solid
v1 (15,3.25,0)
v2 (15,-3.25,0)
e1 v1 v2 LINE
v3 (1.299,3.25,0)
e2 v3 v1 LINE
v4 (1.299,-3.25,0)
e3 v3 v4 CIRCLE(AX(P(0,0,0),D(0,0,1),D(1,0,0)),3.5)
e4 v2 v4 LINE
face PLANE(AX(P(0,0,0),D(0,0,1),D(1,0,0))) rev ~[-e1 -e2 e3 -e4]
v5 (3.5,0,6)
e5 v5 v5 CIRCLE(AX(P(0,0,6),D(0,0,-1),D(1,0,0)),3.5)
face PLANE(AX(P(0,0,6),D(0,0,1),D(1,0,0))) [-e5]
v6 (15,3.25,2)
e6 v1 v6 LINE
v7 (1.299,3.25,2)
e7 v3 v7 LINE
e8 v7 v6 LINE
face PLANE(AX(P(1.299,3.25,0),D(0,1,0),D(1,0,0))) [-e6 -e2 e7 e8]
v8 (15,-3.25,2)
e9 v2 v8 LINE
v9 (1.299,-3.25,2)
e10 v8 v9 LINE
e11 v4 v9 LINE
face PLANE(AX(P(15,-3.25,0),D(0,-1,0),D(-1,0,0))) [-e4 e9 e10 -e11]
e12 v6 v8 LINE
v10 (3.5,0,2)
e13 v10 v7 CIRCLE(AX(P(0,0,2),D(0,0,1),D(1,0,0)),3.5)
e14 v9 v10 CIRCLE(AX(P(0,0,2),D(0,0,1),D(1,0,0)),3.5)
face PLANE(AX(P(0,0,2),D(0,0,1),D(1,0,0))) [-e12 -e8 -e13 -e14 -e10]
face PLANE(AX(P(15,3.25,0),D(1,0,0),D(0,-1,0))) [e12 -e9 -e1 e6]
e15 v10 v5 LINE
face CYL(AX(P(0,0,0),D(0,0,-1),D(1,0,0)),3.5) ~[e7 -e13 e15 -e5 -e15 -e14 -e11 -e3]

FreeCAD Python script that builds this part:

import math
import FreeCAD as App
import Part
import Sketcher
from FreeCAD import Vector

doc = App.newDocument("Part")
body = doc.addObject("PartDesign::Body", "Body")

# Sketch on XY plane
sketch1 = doc.addObject("Sketcher::SketchObject", "Sketch")
body.addObject(sketch1)
sketch1.AttachmentSupport = (doc.XY_Plane, [""])
sketch1.MapMode = "FlatFace"
sketch1.addGeometry(Part.Circle(Vector(0, 0, 0), Vector(0, 0, 1), 3.5), False)
sketch1.addConstraint(Sketcher.Constraint("Coincident", 0, 3, -1, 1))
sketch1.addConstraint(Sketcher.Constraint("Diameter", 0, 7.0))
pad1 = doc.addObject("PartDesign::Pad", "Pad")
body.addObject(pad1)
pad1.Profile = sketch1
pad1.Length = 6

# Sketch on XY plane
sketch2 = doc.addObject("Sketcher::SketchObject", "Sketch001")
body.addObject(sketch2)
sketch2.AttachmentSupport = (doc.XY_Plane, [""])
sketch2.MapMode = "FlatFace"
sketch2.addGeometry(Part.ArcOfCircle(Part.Circle(Vector(0, 0, 0), Vector(0, 0, 1), 3.5), math.radians(-68.21379), math.radians(68.21379)), False)
sketch2.addGeometry(Part.LineSegment(Vector(1.299, -3.25, 0), Vector(15, -3.25, 0)), False)
sketch2.addGeometry(Part.LineSegment(Vector(15, -3.25, 0), Vector(15, 3.25, 0)), False)
sketch2.addGeometry(Part.LineSegment(Vector(15, 3.25, 0), Vector(1.299, 3.25, 0)), False)
sketch2.addConstraint(Sketcher.Constraint("Coincident", 0, 1, 1, 1))
sketch2.addConstraint(Sketcher.Constraint("Coincident", 1, 2, 2, 1))
sketch2.addConstraint(Sketcher.Constraint("Coincident", 2, 2, 3, 1))
sketch2.addConstraint(Sketcher.Constraint("Coincident", 3, 2, 0, 2))
sketch2.addConstraint(Sketcher.Constraint("Horizontal", 1))
sketch2.addConstraint(Sketcher.Constraint("Vertical", 2))
sketch2.addConstraint(Sketcher.Constraint("Horizontal", 3))
sketch2.addConstraint(Sketcher.Constraint("Coincident", 0, 3, -1, 1))
sketch2.addConstraint(Sketcher.Constraint("Vertical", 0, 1, 3, 2))
sketch2.addConstraint(Sketcher.Constraint("Radius", 0, 3.5))
sketch2.addConstraint(Sketcher.Constraint("DistanceY", 2, 1, 2, 2, 6.5))
sketch2.addConstraint(Sketcher.Constraint("DistanceX", 1, 1, 1, 2, 13.701))
pad2 = doc.addObject("PartDesign::Pad", "Pad001")
body.addObject(pad2)
pad2.Profile = sketch2
pad2.Length = 2

doc.recompute()
